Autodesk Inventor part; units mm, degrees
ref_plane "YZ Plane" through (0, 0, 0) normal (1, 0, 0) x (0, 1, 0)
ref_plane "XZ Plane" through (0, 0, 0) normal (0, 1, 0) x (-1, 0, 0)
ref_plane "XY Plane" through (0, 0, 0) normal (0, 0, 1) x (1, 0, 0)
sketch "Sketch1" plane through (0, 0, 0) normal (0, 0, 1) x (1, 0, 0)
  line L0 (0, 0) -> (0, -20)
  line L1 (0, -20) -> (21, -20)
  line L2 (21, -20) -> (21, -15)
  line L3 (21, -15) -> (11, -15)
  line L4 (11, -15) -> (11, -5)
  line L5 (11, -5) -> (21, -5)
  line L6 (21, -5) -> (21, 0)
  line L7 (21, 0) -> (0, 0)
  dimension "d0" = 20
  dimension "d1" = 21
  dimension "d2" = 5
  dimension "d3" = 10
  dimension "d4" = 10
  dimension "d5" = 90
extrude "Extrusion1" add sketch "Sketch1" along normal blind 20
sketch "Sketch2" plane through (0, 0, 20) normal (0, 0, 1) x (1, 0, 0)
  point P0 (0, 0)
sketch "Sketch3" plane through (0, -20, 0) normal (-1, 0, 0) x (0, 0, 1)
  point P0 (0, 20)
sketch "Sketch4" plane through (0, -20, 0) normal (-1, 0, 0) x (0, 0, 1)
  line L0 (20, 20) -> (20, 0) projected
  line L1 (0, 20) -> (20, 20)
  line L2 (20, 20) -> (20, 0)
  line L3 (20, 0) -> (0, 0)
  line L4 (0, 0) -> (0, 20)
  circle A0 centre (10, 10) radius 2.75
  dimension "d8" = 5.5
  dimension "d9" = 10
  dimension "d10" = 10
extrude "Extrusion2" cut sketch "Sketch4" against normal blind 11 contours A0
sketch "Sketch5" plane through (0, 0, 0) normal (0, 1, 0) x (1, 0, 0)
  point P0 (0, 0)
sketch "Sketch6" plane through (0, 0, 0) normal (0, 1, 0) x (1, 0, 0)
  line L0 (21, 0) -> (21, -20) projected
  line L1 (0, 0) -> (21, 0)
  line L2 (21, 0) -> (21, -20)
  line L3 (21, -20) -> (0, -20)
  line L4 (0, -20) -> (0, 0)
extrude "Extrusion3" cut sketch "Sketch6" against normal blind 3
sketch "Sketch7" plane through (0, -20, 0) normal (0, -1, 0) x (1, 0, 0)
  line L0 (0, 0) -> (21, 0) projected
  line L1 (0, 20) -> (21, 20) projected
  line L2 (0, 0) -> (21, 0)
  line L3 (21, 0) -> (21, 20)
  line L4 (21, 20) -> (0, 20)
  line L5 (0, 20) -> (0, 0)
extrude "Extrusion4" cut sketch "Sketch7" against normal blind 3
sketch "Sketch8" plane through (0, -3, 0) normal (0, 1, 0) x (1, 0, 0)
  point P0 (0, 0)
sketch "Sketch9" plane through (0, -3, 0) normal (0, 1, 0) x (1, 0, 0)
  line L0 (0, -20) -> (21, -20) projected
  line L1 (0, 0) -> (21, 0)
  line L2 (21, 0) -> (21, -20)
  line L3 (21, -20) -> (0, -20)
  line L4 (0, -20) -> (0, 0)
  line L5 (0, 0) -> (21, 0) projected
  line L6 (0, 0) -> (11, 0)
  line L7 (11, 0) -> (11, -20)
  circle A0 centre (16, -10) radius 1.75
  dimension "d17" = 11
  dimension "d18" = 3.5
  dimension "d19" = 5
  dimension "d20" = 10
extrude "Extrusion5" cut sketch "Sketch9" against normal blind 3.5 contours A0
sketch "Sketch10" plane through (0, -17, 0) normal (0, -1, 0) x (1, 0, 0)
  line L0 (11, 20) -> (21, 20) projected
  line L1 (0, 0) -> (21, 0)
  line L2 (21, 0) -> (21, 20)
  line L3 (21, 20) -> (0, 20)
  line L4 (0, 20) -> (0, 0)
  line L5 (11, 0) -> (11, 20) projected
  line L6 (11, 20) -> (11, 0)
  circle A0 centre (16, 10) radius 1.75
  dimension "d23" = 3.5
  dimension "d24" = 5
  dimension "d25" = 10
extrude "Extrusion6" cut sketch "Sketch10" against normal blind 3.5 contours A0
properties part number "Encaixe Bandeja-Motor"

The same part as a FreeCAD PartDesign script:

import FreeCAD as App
import Part
import Sketcher
from FreeCAD import Vector

doc = App.newDocument("Part")
body = doc.addObject("PartDesign::Body", "Body")

sketch1 = body.newObject("Sketcher::SketchObject", "Sketch")
sketch1.AttachmentSupport = (doc.getObject("XY_Plane"), [""])
sketch1.MapMode = "FlatFace"
sketch1.addGeometry([
    Part.LineSegment(Vector(21, 0, 0), Vector(0, 0, 0)),
    Part.LineSegment(Vector(0, 0, 0), Vector(0, -20, 0)),
    Part.LineSegment(Vector(0, -20, 0), Vector(21, -20, 0)),
    Part.LineSegment(Vector(21, -20, 0), Vector(21, -15, 0)),
    Part.LineSegment(Vector(21, -15, 0), Vector(11, -15, 0)),
    Part.LineSegment(Vector(11, -15, 0), Vector(11, -5, 0)),
    Part.LineSegment(Vector(11, -5, 0), Vector(21, -5, 0)),
    Part.LineSegment(Vector(21, -5, 0), Vector(21, 0, 0)),
], False)
sketch1.addConstraint([
    Sketcher.Constraint("Coincident", 0, 2, 1, 1),
    Sketcher.Constraint("Coincident", 1, 2, 2, 1),
    Sketcher.Constraint("Coincident", 2, 2, 3, 1),
    Sketcher.Constraint("Coincident", 3, 2, 4, 1),
    Sketcher.Constraint("Coincident", 4, 2, 5, 1),
    Sketcher.Constraint("Coincident", 5, 2, 6, 1),
    Sketcher.Constraint("Coincident", 6, 2, 7, 1),
    Sketcher.Constraint("Coincident", 7, 2, 0, 1),
    Sketcher.Constraint("Horizontal", 0),
    Sketcher.Constraint("Vertical", 1),
    Sketcher.Constraint("Horizontal", 2),
    Sketcher.Constraint("Vertical", 3),
    Sketcher.Constraint("Horizontal", 4),
    Sketcher.Constraint("Vertical", 5),
    Sketcher.Constraint("Horizontal", 6),
    Sketcher.Constraint("Vertical", 7),
    Sketcher.Constraint("Coincident", 0, 2, -1, 1),
    Sketcher.Constraint("Vertical", 3, 2, 6, 2),
    Sketcher.Constraint("Equal", 6, 5),
    Sketcher.Constraint("Equal", 3, 7),
    Sketcher.Constraint("DistanceX", 0, 2, 0, 1, 21.0),
    Sketcher.Constraint("DistanceX", 4, 2, 4, 1, 10.0),
    Sketcher.Constraint("DistanceY", 1, 2, 1, 1, 20.0),
])
pad1 = body.newObject("PartDesign::Pad", "Pad")
pad1.Profile = sketch1
pad1.Length = 20

sketch2 = body.newObject("Sketcher::SketchObject", "Sketch001")
sketch2.AttachmentSupport = (doc.getObject("YZ_Plane"), [""])
sketch2.MapMode = "FlatFace"
sketch2.addGeometry(Part.Circle(Vector(-10, 10, 0), Vector(0, 0, 1), 2.75), False)
sketch2.addConstraint([
    Sketcher.Constraint("Diameter", 0, 5.5),
    Sketcher.Constraint("DistanceX", 0, 3, -1, 1, 10.0),
    Sketcher.Constraint("DistanceY", -1, 1, 0, 3, 10.0),
])
pocket1 = body.newObject("PartDesign::Pocket", "Pocket")
pocket1.Profile = sketch2
pocket1.Length = 11
pocket1.Reversed = True

sketch3 = body.newObject("Sketcher::SketchObject", "Sketch002")
sketch3.AttachmentSupport = (doc.getObject("XZ_Plane"), [""])
sketch3.MapMode = "FlatFace"
sketch3.addGeometry([
    Part.LineSegment(Vector(21, 20, 0), Vector(21, 0, 0)),
    Part.LineSegment(Vector(21, 0, 0), Vector(0, 0, 0)),
    Part.LineSegment(Vector(0, 0, 0), Vector(0, 20, 0)),
    Part.LineSegment(Vector(0, 20, 0), Vector(21, 20, 0)),
], False)
sketch3.addConstraint([
    Sketcher.Constraint("Coincident", 0, 2, 1, 1),
    Sketcher.Constraint("Coincident", 1, 2, 2, 1),
    Sketcher.Constraint("Coincident", 2, 2, 3, 1),
    Sketcher.Constraint("Coincident", 3, 2, 0, 1),
    Sketcher.Constraint("Vertical", 0),
    Sketcher.Constraint("Horizontal", 1),
    Sketcher.Constraint("Vertical", 2),
    Sketcher.Constraint("Horizontal", 3),
    Sketcher.Constraint("Coincident", 1, 2, -1, 1),
    Sketcher.Constraint("DistanceX", 1, 2, 1, 1, 21.0),
    Sketcher.Constraint("DistanceY", 0, 2, 0, 1, 20.0),
])
pocket2 = body.newObject("PartDesign::Pocket", "Pocket001")
pocket2.Profile = sketch3
pocket2.Length = 3
pocket2.Reversed = True

sketch4 = body.newObject("Sketcher::SketchObject", "Sketch003")
sketch4.AttachmentSupport = (doc.getObject("XZ_Plane"), [""])
sketch4.MapMode = "FlatFace"
sketch4.AttachmentOffset = App.Placement(Vector(0, 0, 20), App.Rotation())
sketch4.addGeometry([
    Part.LineSegment(Vector(0, 20, 0), Vector(0, 0, 0)),
    Part.LineSegment(Vector(0, 0, 0), Vector(21, 0, 0)),
    Part.LineSegment(Vector(21, 0, 0), Vector(21, 20, 0)),
    Part.LineSegment(Vector(21, 20, 0), Vector(0, 20, 0)),
], False)
sketch4.addConstraint([
    Sketcher.Constraint("Coincident", 0, 2, 1, 1),
    Sketcher.Constraint("Coincident", 1, 2, 2, 1),
    Sketcher.Constraint("Coincident", 2, 2, 3, 1),
    Sketcher.Constraint("Coincident", 3, 2, 0, 1),
    Sketcher.Constraint("Vertical", 0),
    Sketcher.Constraint("Horizontal", 1),
    Sketcher.Constraint("Vertical", 2),
    Sketcher.Constraint("Horizontal", 3),
    Sketcher.Constraint("Coincident", 0, 2, -1, 1),
    Sketcher.Constraint("DistanceX", 1, 1, 1, 2, 21.0),
    Sketcher.Constraint("DistanceY", 0, 2, 0, 1, 20.0),
])
pocket3 = body.newObject("PartDesign::Pocket", "Pocket002")
pocket3.Profile = sketch4
pocket3.Length = 3

sketch5 = body.newObject("Sketcher::SketchObject", "Sketch004")
sketch5.AttachmentSupport = (doc.getObject("XZ_Plane"), [""])
sketch5.MapMode = "FlatFace"
sketch5.AttachmentOffset = App.Placement(Vector(0, 0, 3), App.Rotation())
sketch5.addGeometry(Part.Circle(Vector(16, 10, 0), Vector(0, 0, 1), 1.75), False)
sketch5.addConstraint([
    Sketcher.Constraint("Diameter", 0, 3.5),
    Sketcher.Constraint("DistanceY", -1, 1, 0, 3, 10.0),
    Sketcher.Constraint("DistanceX", -1, 1, 0, 3, 16.0),
])
pocket4 = body.newObject("PartDesign::Pocket", "Pocket003")
pocket4.Profile = sketch5
pocket4.Length = 3.5
pocket4.Reversed = True

sketch6 = body.newObject("Sketcher::SketchObject", "Sketch005")
sketch6.AttachmentSupport = (doc.getObject("XZ_Plane"), [""])
sketch6.MapMode = "FlatFace"
sketch6.AttachmentOffset = App.Placement(Vector(0, 0, 17), App.Rotation())
sketch6.addGeometry(Part.Circle(Vector(16, 10, 0), Vector(0, 0, 1), 1.75), False)
sketch6.addConstraint([
    Sketcher.Constraint("Diameter", 0, 3.5),
    Sketcher.Constraint("DistanceY", -1, 1, 0, 3, 10.0),
    Sketcher.Constraint("DistanceX", -1, 1, 0, 3, 16.0),
])
pocket5 = body.newObject("PartDesign::Pocket", "Pocket004")
pocket5.Profile = sketch6
pocket5.Length = 3.5

doc.recompute()
